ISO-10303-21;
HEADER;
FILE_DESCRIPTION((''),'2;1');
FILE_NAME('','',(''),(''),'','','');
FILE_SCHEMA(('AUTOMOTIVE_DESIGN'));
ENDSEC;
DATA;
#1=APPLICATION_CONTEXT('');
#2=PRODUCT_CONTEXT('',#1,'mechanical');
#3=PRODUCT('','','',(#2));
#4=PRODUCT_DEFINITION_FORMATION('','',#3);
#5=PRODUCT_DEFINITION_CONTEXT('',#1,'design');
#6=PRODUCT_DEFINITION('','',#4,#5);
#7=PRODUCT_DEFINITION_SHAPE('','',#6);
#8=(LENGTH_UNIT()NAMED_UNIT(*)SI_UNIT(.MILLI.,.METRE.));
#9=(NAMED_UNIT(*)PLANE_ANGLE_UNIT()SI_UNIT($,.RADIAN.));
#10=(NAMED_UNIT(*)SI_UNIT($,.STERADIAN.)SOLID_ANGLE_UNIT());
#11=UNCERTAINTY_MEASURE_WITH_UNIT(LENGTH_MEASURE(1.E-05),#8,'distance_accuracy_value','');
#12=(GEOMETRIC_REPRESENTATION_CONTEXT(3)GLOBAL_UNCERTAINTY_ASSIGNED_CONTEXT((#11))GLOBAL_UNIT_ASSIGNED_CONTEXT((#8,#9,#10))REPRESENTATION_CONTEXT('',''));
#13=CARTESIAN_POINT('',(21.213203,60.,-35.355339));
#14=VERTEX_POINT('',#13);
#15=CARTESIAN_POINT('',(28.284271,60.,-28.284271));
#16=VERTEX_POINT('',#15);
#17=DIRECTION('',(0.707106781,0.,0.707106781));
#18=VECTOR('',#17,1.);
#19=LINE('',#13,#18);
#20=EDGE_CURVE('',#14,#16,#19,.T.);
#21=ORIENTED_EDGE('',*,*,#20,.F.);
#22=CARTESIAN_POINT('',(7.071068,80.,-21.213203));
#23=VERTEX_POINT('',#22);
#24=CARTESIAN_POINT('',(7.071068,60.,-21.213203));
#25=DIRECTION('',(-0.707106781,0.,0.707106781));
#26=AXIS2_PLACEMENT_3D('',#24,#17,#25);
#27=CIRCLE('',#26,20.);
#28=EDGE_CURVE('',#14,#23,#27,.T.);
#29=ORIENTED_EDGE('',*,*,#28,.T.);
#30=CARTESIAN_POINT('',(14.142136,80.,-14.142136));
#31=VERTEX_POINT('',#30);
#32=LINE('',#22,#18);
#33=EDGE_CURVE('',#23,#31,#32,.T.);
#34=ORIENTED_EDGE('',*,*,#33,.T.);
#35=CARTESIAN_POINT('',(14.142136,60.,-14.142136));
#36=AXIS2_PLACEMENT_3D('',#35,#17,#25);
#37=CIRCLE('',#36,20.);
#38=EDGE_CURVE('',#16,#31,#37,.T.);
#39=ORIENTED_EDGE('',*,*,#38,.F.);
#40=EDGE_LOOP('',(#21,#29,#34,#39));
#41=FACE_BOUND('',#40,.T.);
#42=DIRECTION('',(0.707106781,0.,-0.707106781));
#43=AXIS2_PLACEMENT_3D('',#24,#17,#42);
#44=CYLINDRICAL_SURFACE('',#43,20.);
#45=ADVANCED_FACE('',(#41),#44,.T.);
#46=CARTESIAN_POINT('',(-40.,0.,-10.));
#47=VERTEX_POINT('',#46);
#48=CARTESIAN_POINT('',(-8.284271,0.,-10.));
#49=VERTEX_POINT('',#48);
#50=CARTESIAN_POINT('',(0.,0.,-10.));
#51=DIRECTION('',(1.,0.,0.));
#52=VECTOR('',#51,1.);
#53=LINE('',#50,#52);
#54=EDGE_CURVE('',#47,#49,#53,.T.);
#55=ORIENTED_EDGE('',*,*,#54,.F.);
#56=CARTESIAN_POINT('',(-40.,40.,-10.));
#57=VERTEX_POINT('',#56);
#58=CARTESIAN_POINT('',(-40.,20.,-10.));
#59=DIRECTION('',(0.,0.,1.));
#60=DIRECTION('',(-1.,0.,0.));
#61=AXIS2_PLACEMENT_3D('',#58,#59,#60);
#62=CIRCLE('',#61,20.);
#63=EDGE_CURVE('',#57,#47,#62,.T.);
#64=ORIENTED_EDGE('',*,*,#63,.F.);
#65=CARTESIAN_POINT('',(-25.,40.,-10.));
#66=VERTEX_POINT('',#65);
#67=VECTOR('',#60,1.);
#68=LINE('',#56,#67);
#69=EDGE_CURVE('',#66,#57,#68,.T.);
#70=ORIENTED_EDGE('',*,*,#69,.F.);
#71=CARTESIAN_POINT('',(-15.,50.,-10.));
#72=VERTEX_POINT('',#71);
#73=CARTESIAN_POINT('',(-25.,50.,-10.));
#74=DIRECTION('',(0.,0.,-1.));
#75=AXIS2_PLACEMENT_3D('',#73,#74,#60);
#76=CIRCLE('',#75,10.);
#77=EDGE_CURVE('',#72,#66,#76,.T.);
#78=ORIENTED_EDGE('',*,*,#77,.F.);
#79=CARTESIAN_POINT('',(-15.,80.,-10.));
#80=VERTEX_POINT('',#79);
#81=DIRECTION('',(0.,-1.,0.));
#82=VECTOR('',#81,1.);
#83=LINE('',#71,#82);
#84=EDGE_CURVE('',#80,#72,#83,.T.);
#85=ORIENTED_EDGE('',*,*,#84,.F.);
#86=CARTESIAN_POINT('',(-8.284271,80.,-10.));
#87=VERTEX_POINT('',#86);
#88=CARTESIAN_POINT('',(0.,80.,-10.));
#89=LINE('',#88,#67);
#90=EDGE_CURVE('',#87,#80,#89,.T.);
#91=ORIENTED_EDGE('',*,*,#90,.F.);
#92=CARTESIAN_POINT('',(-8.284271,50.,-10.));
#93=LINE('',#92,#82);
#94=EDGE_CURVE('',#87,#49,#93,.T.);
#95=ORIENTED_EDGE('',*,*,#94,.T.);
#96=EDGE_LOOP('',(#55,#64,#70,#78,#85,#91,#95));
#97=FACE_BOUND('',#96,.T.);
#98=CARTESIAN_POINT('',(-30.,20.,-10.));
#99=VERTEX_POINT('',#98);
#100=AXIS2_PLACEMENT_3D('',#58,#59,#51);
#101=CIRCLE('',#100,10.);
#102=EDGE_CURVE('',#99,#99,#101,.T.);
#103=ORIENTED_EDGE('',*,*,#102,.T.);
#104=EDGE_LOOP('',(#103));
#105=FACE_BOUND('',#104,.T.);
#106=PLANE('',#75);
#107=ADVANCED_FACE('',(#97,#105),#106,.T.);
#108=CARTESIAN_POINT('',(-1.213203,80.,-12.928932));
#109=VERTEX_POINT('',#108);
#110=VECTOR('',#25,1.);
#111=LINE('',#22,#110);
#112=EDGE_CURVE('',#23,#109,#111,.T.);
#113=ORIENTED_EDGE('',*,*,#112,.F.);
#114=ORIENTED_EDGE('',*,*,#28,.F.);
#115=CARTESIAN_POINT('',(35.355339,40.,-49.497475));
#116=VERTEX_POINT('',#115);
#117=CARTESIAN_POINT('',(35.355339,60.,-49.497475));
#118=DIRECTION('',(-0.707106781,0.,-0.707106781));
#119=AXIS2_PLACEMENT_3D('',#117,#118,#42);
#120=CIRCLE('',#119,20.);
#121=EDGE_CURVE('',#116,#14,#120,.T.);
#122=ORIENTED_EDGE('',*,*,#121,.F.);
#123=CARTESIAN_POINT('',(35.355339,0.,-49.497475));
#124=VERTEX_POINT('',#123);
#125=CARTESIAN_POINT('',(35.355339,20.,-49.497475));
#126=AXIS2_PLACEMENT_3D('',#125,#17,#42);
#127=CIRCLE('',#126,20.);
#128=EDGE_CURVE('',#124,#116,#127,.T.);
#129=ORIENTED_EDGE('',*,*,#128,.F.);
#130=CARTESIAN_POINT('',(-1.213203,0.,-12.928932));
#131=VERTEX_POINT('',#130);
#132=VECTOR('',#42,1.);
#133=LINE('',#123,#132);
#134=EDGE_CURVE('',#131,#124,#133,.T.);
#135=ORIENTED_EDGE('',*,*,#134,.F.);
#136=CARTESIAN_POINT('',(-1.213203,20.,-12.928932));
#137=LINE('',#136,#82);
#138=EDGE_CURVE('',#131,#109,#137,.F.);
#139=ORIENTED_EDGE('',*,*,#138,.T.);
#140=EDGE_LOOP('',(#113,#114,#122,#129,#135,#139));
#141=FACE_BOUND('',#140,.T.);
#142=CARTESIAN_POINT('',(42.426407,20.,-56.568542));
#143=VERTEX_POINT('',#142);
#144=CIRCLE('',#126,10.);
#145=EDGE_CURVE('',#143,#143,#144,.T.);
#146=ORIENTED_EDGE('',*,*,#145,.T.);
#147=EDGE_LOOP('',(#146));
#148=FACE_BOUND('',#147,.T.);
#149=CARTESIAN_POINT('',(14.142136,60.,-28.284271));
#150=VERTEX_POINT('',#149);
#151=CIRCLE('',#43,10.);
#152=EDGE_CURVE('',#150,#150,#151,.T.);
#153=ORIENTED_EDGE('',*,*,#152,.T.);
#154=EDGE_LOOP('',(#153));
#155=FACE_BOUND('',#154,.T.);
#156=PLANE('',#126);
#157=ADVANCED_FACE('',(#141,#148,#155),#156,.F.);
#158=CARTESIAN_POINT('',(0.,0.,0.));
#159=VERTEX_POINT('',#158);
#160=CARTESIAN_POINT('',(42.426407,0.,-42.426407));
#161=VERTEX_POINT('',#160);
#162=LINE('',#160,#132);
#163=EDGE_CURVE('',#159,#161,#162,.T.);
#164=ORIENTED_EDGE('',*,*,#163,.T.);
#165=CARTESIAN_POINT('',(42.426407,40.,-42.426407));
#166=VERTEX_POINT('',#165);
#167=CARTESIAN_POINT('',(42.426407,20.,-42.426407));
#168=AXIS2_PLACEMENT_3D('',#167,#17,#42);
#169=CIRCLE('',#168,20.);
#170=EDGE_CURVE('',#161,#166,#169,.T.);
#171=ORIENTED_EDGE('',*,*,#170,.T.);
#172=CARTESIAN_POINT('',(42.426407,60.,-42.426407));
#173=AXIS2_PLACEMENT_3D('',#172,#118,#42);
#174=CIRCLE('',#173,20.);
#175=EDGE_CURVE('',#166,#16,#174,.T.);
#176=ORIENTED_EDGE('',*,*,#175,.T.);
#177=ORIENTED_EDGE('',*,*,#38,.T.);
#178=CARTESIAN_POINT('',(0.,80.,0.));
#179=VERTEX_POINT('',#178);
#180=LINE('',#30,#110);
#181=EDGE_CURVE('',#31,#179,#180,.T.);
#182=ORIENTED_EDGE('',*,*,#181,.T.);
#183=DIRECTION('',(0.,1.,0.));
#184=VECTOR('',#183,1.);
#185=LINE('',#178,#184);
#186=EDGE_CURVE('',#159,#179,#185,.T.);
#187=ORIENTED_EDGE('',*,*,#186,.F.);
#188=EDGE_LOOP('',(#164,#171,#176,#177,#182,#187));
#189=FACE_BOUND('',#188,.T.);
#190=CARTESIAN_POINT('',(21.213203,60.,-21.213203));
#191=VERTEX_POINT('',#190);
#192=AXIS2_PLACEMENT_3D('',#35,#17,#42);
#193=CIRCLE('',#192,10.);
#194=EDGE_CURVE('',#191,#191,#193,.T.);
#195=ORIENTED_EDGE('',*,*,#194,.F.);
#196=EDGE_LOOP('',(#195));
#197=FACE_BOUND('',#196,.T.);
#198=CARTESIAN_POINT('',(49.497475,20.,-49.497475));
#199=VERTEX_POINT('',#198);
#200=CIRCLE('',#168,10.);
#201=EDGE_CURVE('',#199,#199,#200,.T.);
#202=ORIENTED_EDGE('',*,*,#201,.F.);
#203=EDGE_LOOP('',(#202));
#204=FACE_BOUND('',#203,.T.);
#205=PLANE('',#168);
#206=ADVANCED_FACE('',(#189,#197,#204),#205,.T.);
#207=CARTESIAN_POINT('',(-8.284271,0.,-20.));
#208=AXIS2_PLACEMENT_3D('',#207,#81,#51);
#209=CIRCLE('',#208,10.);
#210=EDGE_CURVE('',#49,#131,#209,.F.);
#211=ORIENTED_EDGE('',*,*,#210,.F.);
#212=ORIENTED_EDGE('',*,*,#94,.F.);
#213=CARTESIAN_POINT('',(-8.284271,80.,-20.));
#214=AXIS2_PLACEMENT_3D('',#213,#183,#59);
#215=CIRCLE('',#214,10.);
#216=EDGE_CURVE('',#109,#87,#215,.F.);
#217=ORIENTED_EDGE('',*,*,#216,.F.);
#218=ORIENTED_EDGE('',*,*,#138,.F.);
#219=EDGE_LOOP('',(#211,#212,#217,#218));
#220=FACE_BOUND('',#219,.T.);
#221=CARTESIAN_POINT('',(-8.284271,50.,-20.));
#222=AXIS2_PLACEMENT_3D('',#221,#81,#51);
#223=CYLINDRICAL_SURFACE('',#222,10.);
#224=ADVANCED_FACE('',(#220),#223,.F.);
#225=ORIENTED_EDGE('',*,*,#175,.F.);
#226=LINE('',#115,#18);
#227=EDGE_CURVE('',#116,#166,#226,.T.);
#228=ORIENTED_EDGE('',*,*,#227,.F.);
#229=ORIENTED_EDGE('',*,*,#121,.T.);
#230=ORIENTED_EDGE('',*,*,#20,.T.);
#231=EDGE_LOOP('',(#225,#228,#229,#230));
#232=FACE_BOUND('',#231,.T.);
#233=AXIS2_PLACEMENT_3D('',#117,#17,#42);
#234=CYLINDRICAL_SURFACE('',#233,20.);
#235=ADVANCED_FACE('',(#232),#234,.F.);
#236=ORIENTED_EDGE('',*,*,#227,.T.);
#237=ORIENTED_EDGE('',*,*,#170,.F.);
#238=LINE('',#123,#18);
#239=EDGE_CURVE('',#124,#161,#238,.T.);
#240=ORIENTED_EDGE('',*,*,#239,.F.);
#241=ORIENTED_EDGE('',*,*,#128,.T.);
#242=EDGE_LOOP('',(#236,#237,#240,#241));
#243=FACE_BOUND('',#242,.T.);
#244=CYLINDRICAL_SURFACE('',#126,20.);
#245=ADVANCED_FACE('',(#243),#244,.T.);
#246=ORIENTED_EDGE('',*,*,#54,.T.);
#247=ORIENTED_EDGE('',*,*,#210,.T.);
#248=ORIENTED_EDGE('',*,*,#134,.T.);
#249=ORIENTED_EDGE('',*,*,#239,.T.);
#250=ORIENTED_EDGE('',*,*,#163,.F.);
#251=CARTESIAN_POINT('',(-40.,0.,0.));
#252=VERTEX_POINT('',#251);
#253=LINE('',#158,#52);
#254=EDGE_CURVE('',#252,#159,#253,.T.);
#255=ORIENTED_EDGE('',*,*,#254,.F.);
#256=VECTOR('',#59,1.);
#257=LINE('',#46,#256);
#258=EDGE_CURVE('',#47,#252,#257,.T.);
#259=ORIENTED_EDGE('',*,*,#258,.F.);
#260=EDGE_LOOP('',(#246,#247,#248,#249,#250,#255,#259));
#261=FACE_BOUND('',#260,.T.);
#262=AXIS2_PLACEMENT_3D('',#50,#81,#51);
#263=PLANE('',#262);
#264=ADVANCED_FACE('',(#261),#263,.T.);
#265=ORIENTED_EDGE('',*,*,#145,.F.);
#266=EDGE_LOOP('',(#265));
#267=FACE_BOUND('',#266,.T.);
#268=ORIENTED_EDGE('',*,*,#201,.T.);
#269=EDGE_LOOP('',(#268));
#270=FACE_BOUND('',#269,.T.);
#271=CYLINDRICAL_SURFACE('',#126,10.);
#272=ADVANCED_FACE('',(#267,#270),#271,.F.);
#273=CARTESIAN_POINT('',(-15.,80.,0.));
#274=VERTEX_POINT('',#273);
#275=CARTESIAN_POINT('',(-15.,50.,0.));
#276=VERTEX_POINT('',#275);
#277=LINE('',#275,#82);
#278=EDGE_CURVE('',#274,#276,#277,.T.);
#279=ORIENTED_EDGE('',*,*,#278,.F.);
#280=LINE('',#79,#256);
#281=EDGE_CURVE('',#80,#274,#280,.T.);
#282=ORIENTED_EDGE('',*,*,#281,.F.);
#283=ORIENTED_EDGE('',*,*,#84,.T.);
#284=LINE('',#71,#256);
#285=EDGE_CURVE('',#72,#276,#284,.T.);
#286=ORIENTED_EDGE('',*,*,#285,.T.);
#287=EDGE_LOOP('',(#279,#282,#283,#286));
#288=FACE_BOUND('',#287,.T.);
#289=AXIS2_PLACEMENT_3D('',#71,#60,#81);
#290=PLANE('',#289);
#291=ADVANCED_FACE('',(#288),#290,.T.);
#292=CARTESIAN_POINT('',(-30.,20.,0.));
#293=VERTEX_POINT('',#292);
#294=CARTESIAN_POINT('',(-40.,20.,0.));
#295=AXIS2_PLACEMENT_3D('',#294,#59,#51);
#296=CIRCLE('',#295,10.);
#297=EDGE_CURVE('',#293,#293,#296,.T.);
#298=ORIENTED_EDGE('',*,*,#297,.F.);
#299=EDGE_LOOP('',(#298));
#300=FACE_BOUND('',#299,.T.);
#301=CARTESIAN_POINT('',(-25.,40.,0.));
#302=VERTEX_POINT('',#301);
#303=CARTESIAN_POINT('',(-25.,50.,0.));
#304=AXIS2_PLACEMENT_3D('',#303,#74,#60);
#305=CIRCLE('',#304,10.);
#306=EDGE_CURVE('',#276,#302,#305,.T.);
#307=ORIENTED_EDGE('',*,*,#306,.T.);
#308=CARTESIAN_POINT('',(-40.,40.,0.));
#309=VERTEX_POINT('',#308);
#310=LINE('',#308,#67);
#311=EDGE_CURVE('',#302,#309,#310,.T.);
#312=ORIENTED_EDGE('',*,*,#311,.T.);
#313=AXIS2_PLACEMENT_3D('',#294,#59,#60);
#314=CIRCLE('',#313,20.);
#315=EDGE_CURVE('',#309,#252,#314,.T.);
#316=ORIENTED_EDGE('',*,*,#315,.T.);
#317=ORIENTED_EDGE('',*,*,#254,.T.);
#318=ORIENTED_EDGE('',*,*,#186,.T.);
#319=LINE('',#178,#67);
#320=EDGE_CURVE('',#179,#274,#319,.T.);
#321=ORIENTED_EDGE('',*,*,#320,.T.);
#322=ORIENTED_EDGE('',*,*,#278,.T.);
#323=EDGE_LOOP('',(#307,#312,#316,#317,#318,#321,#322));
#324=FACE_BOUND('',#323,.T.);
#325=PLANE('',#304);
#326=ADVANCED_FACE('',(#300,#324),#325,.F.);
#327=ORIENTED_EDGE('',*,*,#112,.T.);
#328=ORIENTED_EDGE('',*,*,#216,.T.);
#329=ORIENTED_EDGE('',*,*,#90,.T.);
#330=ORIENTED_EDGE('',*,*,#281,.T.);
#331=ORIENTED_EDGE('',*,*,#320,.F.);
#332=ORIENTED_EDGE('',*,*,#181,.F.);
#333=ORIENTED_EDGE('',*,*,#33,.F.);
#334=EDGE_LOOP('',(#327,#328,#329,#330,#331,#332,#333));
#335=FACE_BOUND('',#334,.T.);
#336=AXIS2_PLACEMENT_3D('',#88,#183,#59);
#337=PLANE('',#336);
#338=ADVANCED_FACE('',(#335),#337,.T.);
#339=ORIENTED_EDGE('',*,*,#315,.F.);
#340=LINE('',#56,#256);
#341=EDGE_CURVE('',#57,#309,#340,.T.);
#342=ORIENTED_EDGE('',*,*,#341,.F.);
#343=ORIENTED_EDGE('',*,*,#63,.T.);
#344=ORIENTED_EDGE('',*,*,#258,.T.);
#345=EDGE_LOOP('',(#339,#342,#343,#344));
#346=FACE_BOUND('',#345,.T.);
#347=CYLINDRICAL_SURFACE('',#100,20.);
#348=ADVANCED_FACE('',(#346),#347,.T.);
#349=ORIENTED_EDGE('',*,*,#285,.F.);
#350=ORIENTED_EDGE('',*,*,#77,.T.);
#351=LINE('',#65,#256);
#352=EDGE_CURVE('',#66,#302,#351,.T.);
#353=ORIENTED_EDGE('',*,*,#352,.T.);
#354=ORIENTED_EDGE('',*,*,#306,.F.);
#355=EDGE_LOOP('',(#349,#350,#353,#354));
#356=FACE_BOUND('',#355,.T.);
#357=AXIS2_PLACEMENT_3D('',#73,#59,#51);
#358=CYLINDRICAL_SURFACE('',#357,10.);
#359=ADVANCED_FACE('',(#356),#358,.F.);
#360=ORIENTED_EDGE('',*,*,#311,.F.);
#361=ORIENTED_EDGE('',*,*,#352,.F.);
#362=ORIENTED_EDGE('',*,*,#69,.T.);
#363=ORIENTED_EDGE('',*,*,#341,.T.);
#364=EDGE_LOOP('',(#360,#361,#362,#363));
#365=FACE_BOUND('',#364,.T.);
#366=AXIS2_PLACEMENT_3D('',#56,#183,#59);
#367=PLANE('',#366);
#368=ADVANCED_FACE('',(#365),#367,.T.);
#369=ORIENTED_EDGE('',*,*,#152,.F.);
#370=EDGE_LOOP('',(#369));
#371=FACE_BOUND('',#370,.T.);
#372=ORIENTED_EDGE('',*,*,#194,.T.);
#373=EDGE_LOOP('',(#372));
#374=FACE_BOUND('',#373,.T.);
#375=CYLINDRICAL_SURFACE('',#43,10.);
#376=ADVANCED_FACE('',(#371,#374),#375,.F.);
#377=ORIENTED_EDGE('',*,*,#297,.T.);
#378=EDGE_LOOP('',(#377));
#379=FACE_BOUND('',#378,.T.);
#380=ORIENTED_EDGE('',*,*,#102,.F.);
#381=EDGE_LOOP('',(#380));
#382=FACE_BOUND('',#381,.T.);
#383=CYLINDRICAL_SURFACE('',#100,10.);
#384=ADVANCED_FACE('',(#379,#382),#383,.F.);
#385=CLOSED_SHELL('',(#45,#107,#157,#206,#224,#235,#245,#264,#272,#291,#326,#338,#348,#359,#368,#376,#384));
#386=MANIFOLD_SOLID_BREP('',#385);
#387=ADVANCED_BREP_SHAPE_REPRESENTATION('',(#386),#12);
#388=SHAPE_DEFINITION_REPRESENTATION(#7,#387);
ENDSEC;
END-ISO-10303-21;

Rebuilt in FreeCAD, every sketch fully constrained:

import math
import FreeCAD as App
import Part
import Sketcher
from FreeCAD import Vector
Q = App.Units.Quantity


def edges_at(feature, points):
    """Names of the edges that pass closest to the given points."""
    edges = feature.Shape.Edges
    near = lambda p: min(range(len(edges)), key=lambda i: edges[i].distToShape(Part.Vertex(*p))[0])
    return sorted({f"Edge{near(p) + 1}" for p in points})

doc = App.newDocument("Part")
body = doc.addObject("PartDesign::Body", "Body")

sketch1 = doc.addObject("Sketcher::SketchObject", "Sketch")
body.addObject(sketch1)
sketch1.AttachmentSupport = (doc.XY_Plane, [""])
sketch1.MapMode = "FlatFace"
sketch1.addGeometry([
    Part.LineSegment(Vector(0, 0, 0), Vector(0, 80, 0)),
    Part.LineSegment(Vector(0, 80, 0), Vector(-15, 80, 0)),
    Part.LineSegment(Vector(-15, 80, 0), Vector(-15, 50, 0)),
    Part.ArcOfCircle(Part.Circle(Vector(-25, 50, 0), Vector(0, 0, 1), 10), math.radians(-90), math.radians(0)),
    Part.LineSegment(Vector(-25, 40, 0), Vector(-40, 40, 0)),
    Part.ArcOfCircle(Part.Circle(Vector(-40, 20, 0), Vector(0, 0, 1), 20), math.radians(90), math.radians(270)),
    Part.LineSegment(Vector(-40, 0, 0), Vector(0, 0, 0)),
    Part.Circle(Vector(-40, 20, 0), Vector(0, 0, 1), 10),
], False)
sketch1.addConstraint([
    Sketcher.Constraint("Coincident", 0, 2, 1, 1),
    Sketcher.Constraint("Coincident", 1, 2, 2, 1),
    Sketcher.Constraint("Tangent", 2, 2, 3, 2),
    Sketcher.Constraint("Tangent", 3, 1, 4, 1),
    Sketcher.Constraint("Tangent", 4, 2, 5, 1),
    Sketcher.Constraint("Tangent", 5, 2, 6, 1),
    Sketcher.Constraint("Coincident", 6, 2, 0, 1),
    Sketcher.Constraint("Vertical", 0),
    Sketcher.Constraint("Horizontal", 1),
    Sketcher.Constraint("Vertical", 2),
    Sketcher.Constraint("Horizontal", 4),
    Sketcher.Constraint("Horizontal", 6),
    Sketcher.Constraint("Coincident", 6, 2, -1, 1),
    Sketcher.Constraint("Coincident", 7, 3, 5, 3),
    Sketcher.Constraint("Equal", 3, 7),
    Sketcher.Constraint("Equal", 1, 4),
    Sketcher.Constraint("Diameter", 7, Q("20 mm")),
    Sketcher.Constraint("Radius", 5, Q("20 mm")),
    Sketcher.Constraint("DistanceX", 1, 2, 1, 1, Q("15 mm")),
    Sketcher.Constraint("DistanceY", 0, 1, 0, 2, Q("80 mm")),
])
pad1 = doc.addObject("PartDesign::Pad", "Pad")
body.addObject(pad1)
pad1.Profile = sketch1
pad1.Length = 10
pad1.Reversed = True

sketch2 = doc.addObject("Sketcher::SketchObject", "Sketch001")
body.addObject(sketch2)
sketch2.Placement = App.Placement(Vector(0, 0, 0), App.Rotation(Vector(0, -1, 0), Vector(0.707106781, 0, -0.707106781), Vector(0.707106781, 0, 0.707106781), "ZXY"))
sketch2.addGeometry([
    Part.LineSegment(Vector(0, 0, 0), Vector(0, 60, 0)),
    Part.ArcOfCircle(Part.Circle(Vector(-20, 60, 0), Vector(0, 0, 1), 20), math.radians(0), math.radians(180)),
    Part.ArcOfCircle(Part.Circle(Vector(-60, 60, 0), Vector(0, 0, 1), 20), math.radians(-90), math.radians(0)),
    Part.ArcOfCircle(Part.Circle(Vector(-60, 20, 0), Vector(0, 0, 1), 20), math.radians(90), math.radians(180)),
    Part.LineSegment(Vector(-80, 20, 0), Vector(-80, 0, 0)),
    Part.LineSegment(Vector(-80, 0, 0), Vector(0, 0, 0)),
    Part.Circle(Vector(-60, 20, 0), Vector(0, 0, 1), 10),
    Part.Circle(Vector(-20, 60, 0), Vector(0, 0, 1), 10),
], False)
sketch2.addConstraint([
    Sketcher.Constraint("Tangent", 0, 2, 1, 1),
    Sketcher.Constraint("Tangent", 1, 2, 2, 2),
    Sketcher.Constraint("Tangent", 2, 1, 3, 1),
    Sketcher.Constraint("Tangent", 3, 2, 4, 1),
    Sketcher.Constraint("Coincident", 4, 2, 5, 1),
    Sketcher.Constraint("Coincident", 5, 2, 0, 1),
    Sketcher.Constraint("Vertical", 0),
    Sketcher.Constraint("Vertical", 4),
    Sketcher.Constraint("Horizontal", 5),
    Sketcher.Constraint("Coincident", 5, 2, -1, 1),
    Sketcher.Constraint("Coincident", 6, 3, 3, 3),
    Sketcher.Constraint("Coincident", 7, 3, 1, 3),
    Sketcher.Constraint("Equal", 1, 2),
    Sketcher.Constraint("Equal", 2, 3),
    Sketcher.Constraint("Equal", 6, 7),
    Sketcher.Constraint("Horizontal", 1, 3, 2, 3),
    Sketcher.Constraint("Vertical", 2, 3, 3, 3),
    Sketcher.Constraint("Diameter", 6, Q("20 mm")),
    Sketcher.Constraint("Radius", 1, Q("20 mm")),
    Sketcher.Constraint("DistanceY", 0, 1, 0, 2, Q("60 mm")),
])
pad2 = doc.addObject("PartDesign::Pad", "Pad001")
body.addObject(pad2)
pad2.Profile = sketch2
pad2.Length = 10
pad2.Reversed = True
doc.recompute()

fillet = doc.addObject("PartDesign::Fillet", "Fillet")
body.addObject(fillet)
fillet.Base = (pad2, edges_at(pad2, [(-4.142, 40, -10)]))
fillet.Radius = 10

doc.recompute()
